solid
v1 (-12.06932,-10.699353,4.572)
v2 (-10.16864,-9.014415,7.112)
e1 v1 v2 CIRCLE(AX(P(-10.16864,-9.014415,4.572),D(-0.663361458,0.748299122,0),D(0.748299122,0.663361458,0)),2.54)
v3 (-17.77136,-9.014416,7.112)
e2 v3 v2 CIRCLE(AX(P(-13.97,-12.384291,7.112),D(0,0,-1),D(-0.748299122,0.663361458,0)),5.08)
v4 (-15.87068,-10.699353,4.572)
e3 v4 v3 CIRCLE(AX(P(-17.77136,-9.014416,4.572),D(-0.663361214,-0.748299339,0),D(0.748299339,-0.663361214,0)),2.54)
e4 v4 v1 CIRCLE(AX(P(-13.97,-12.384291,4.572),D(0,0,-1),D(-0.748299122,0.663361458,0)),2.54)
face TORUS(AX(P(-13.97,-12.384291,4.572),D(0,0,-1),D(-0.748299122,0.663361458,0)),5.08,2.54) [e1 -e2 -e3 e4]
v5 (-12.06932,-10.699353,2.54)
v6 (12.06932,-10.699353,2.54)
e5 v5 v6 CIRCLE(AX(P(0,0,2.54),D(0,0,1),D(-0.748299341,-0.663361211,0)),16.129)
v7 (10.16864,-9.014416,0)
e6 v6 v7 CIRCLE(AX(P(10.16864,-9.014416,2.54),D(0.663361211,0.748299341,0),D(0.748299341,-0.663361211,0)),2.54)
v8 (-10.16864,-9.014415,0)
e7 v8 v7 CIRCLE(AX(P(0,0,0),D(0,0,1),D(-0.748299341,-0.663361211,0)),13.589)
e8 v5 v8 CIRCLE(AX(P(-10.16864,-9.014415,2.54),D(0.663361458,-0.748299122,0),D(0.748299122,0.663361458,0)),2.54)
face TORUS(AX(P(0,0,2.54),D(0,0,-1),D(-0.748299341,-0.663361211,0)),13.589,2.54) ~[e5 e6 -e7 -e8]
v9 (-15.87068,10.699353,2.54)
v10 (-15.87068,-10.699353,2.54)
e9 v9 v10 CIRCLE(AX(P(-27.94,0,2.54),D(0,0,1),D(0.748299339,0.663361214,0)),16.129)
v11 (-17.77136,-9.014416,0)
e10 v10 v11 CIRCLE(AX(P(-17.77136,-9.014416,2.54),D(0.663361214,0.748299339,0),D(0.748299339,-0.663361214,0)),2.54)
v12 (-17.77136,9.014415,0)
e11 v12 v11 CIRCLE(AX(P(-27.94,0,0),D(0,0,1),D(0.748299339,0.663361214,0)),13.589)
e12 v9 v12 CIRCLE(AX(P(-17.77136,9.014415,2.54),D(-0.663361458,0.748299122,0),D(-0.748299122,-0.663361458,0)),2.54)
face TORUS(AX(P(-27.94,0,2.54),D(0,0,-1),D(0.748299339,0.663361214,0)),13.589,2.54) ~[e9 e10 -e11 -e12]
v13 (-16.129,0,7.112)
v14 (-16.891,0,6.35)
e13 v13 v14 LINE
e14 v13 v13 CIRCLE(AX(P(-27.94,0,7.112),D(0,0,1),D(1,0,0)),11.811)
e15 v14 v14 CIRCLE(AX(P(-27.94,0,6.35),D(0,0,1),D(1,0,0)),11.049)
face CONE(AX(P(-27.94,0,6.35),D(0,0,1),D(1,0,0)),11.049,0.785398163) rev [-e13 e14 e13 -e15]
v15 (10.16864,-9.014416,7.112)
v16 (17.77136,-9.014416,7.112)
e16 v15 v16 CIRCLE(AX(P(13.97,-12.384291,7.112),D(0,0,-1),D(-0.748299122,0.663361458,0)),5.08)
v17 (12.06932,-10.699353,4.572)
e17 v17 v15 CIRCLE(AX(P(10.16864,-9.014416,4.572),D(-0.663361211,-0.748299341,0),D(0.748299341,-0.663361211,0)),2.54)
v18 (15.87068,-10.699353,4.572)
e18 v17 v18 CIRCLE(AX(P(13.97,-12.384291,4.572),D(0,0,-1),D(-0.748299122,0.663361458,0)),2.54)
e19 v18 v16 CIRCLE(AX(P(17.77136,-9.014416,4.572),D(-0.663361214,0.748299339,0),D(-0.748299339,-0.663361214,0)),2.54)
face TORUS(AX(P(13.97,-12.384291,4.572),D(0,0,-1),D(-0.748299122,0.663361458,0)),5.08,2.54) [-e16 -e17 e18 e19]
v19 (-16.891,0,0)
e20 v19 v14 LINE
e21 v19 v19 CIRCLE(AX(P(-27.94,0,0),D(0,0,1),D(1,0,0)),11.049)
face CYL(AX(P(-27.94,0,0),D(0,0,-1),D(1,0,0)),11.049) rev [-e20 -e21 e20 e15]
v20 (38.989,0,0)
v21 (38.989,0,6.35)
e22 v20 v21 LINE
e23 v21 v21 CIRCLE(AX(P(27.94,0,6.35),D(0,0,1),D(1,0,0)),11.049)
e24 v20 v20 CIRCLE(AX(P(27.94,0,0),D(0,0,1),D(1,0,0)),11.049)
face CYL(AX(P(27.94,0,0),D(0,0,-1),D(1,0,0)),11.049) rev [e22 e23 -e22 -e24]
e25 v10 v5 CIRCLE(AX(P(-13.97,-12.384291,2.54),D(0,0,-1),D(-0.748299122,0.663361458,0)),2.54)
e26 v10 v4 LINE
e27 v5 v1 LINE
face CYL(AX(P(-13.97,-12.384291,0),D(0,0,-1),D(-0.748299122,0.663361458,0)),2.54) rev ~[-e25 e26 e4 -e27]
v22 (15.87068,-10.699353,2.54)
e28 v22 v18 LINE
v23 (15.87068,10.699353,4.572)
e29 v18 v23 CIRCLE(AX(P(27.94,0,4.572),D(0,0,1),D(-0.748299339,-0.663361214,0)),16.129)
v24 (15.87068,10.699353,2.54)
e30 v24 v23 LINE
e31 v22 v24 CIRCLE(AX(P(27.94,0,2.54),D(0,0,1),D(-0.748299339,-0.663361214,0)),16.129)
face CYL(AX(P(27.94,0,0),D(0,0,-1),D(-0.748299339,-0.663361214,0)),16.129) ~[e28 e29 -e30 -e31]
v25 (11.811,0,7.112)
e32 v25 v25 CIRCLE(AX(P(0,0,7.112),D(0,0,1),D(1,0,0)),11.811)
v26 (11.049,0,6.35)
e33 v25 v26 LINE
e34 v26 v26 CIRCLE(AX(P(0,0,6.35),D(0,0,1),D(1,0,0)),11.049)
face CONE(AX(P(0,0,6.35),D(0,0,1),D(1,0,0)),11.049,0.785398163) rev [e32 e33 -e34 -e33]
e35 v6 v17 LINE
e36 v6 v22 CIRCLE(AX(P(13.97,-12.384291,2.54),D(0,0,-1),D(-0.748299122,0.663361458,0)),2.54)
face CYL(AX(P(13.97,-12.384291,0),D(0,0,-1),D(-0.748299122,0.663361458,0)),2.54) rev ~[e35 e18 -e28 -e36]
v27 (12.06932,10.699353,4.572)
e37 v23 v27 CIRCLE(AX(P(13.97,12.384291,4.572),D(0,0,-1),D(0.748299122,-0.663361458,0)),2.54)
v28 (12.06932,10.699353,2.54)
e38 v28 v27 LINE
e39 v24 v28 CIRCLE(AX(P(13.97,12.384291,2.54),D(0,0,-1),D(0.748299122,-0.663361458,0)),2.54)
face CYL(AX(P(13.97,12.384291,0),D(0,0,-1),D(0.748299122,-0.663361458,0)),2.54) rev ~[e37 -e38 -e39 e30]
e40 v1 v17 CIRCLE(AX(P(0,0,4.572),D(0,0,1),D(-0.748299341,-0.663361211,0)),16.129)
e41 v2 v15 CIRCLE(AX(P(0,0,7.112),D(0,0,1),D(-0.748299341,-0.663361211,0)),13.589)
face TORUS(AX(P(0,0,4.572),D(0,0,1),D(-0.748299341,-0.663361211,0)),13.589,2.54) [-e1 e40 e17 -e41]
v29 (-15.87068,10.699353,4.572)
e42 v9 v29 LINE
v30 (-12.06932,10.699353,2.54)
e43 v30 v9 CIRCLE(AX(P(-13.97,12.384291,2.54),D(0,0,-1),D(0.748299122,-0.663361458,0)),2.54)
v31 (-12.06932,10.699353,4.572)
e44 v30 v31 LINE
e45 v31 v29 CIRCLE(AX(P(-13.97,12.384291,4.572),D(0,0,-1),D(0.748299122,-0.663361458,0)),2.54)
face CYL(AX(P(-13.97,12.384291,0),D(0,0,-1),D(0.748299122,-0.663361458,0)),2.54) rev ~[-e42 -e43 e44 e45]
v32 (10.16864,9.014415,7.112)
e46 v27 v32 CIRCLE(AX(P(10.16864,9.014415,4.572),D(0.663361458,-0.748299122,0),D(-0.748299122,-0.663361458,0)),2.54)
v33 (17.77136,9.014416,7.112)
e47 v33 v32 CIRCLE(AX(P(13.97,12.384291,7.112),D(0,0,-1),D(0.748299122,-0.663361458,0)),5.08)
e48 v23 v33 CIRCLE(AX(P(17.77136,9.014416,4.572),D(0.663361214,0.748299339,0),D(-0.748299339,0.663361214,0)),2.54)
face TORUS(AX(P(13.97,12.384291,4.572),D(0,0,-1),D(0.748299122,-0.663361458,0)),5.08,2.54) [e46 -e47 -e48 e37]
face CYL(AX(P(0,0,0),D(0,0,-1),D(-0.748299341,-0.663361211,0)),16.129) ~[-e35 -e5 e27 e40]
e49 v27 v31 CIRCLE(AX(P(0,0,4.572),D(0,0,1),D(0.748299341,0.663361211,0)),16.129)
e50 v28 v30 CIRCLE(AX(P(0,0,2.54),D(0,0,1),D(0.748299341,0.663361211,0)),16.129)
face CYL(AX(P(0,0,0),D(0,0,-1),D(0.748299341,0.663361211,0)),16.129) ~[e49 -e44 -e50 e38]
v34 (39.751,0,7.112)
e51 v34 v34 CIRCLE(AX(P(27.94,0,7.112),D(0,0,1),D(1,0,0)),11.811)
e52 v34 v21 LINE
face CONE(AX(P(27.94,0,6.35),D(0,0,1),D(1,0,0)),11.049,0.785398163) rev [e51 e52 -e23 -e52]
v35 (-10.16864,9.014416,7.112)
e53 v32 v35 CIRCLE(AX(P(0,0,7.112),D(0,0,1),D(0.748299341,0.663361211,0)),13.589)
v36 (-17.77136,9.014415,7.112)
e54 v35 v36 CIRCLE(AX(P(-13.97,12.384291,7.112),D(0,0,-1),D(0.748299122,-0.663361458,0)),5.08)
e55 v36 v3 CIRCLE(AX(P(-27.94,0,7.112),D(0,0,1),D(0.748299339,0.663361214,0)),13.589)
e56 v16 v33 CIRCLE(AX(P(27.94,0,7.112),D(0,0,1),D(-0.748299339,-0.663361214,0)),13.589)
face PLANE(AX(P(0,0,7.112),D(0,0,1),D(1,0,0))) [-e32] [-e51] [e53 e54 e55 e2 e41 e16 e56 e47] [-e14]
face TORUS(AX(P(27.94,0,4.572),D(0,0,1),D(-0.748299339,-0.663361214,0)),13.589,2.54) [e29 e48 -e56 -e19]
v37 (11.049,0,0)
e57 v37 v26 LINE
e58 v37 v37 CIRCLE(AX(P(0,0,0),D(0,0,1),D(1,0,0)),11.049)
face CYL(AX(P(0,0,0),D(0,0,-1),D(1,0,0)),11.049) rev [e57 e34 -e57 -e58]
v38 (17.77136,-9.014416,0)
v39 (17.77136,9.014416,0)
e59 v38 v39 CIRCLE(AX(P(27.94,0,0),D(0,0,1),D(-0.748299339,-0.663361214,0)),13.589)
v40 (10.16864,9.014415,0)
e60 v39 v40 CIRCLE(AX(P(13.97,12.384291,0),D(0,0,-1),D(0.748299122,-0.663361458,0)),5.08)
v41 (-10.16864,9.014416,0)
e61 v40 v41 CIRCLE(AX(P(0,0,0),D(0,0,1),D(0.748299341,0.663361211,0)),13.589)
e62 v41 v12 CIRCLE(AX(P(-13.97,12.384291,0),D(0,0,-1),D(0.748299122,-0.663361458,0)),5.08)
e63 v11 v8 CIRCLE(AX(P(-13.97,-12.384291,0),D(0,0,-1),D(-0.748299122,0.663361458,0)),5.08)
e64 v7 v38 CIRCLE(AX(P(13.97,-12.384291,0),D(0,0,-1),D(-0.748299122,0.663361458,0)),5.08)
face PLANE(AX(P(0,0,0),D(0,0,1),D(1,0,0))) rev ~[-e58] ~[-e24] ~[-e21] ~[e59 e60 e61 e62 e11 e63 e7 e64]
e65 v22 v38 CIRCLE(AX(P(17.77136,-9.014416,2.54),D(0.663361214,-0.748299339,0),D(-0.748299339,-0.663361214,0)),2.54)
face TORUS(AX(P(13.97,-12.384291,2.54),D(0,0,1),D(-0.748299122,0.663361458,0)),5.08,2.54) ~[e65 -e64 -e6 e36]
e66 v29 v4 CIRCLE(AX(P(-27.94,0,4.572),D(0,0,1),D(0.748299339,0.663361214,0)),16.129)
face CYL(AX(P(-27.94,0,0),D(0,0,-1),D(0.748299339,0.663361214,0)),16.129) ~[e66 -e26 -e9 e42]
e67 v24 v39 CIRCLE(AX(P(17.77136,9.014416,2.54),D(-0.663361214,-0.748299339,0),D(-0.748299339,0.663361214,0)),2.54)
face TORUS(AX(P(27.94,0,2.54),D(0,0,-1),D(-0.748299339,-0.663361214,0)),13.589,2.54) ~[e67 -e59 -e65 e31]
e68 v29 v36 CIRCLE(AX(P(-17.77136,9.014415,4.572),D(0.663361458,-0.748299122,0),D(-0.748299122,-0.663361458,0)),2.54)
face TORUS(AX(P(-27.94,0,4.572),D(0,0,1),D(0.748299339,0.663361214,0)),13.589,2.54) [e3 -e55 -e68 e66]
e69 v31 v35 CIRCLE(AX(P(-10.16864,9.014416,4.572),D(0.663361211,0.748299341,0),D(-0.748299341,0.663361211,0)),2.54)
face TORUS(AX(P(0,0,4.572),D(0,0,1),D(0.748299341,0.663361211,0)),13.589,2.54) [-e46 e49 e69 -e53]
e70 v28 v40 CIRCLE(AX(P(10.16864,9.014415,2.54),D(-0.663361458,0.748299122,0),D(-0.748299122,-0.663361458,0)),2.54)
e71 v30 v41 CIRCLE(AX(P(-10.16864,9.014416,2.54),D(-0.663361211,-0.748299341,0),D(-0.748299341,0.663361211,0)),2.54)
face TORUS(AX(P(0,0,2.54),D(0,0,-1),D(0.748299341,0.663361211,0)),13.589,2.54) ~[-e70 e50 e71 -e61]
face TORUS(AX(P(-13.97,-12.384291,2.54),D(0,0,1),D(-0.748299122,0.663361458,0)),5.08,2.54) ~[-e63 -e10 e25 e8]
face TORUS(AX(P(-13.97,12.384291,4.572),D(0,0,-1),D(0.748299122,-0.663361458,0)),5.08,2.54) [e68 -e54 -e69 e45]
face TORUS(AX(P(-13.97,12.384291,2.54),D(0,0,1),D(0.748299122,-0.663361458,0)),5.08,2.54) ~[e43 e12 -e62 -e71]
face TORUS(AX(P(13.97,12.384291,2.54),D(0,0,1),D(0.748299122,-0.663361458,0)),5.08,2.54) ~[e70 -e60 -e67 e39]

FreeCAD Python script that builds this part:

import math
import FreeCAD as App
import Part
import Sketcher

V = App.Vector
Q = App.Units.Quantity


def edges_at(feature, points):
    """Names of the edges that pass closest to the given points."""
    edges = feature.Shape.Edges
    near = lambda p: min(range(len(edges)), key=lambda i: edges[i].distToShape(Part.Vertex(*p))[0])
    return sorted({f"Edge{near(p) + 1}" for p in points})

doc = App.newDocument("Part")
body = doc.addObject("PartDesign::Body", "Body")

sketch1 = body.newObject("Sketcher::SketchObject", "Sketch")
sketch1.AttachmentSupport = (doc.getObject("XY_Plane"), [""])
sketch1.MapMode = "FlatFace"
sketch1.addGeometry(Part.ArcOfCircle(Part.Circle(V(-13.97, -12.384291, 0), V(0, 0, 1), 2.54), math.radians(41.556743), math.radians(138.443257)), False)
sketch1.addGeometry(Part.ArcOfCircle(Part.Circle(V(0, 0, 0), V(0, 0, 1), 16.129), math.radians(-138.443276), math.radians(-41.556724)), False)
sketch1.addGeometry(Part.ArcOfCircle(Part.Circle(V(13.97, -12.384291, 0), V(0, 0, 1), 2.54), math.radians(41.556743), math.radians(138.443257)), False)
sketch1.addGeometry(Part.ArcOfCircle(Part.Circle(V(27.94, 0, 0), V(0, 0, 1), 16.129), math.radians(-138.443275), math.radians(138.443275)), False)
sketch1.addGeometry(Part.ArcOfCircle(Part.Circle(V(13.97, 12.384291, 0), V(0, 0, 1), 2.54), math.radians(-138.443257), math.radians(-41.556743)), False)
sketch1.addGeometry(Part.ArcOfCircle(Part.Circle(V(0, 0, 0), V(0, 0, 1), 16.129), math.radians(41.556724), math.radians(138.443276)), False)
sketch1.addGeometry(Part.ArcOfCircle(Part.Circle(V(-13.97, 12.384291, 0), V(0, 0, 1), 2.54), math.radians(-138.443257), math.radians(-41.556743)), False)
sketch1.addGeometry(Part.ArcOfCircle(Part.Circle(V(-27.94, 0, 0), V(0, 0, 1), 16.129), math.radians(41.556725), math.radians(318.443275)), False)
sketch1.addGeometry(Part.Circle(V(-27.94, 0, 0), V(0, 0, 1), 11.049), False)
sketch1.addGeometry(Part.Circle(V(0, 0, 0), V(0, 0, 1), 11.049), False)
sketch1.addGeometry(Part.Circle(V(27.94, 0, 0), V(0, 0, 1), 11.049), False)
sketch1.addConstraint(Sketcher.Constraint("Tangent", 0, 1, 1, 1))
sketch1.addConstraint(Sketcher.Constraint("Tangent", 1, 2, 2, 2))
sketch1.addConstraint(Sketcher.Constraint("Tangent", 2, 1, 3, 1))
sketch1.addConstraint(Sketcher.Constraint("Tangent", 3, 2, 4, 2))
sketch1.addConstraint(Sketcher.Constraint("Tangent", 4, 1, 5, 1))
sketch1.addConstraint(Sketcher.Constraint("Tangent", 5, 2, 6, 2))
sketch1.addConstraint(Sketcher.Constraint("Tangent", 6, 1, 7, 1))
sketch1.addConstraint(Sketcher.Constraint("Tangent", 7, 2, 0, 2))
sketch1.addConstraint(Sketcher.Constraint("Coincident", 1, 3, -1, 1))
sketch1.addConstraint(Sketcher.Constraint("Coincident", 5, 3, -1, 1))
sketch1.addConstraint(Sketcher.Constraint("Coincident", 9, 3, -1, 1))
sketch1.addConstraint(Sketcher.Constraint("Coincident", 8, 3, 7, 3))
sketch1.addConstraint(Sketcher.Constraint("Coincident", 10, 3, 3, 3))
sketch1.addConstraint(Sketcher.Constraint("Equal", 0, 2))
sketch1.addConstraint(Sketcher.Constraint("Equal", 1, 3))
sketch1.addConstraint(Sketcher.Constraint("Equal", 2, 4))
sketch1.addConstraint(Sketcher.Constraint("Equal", 3, 5))
sketch1.addConstraint(Sketcher.Constraint("Equal", 4, 6))
sketch1.addConstraint(Sketcher.Constraint("Equal", 5, 7))
sketch1.addConstraint(Sketcher.Constraint("Equal", 8, 9))
sketch1.addConstraint(Sketcher.Constraint("Equal", 9, 10))
sketch1.addConstraint(Sketcher.Constraint("Symmetric", 3, 3, 7, 3, -1, 1))
sketch1.addConstraint(Sketcher.Constraint("PointOnObject", 3, 3, -1))
sketch1.addConstraint(Sketcher.Constraint("Radius", 0, Q("0.1 in")))
sketch1.addConstraint(Sketcher.Constraint("Diameter", 8, Q("0.87 in")))
sketch1.addConstraint(Sketcher.Constraint("Radius", 1, Q("0.635 in")))
sketch1.addConstraint(Sketcher.Constraint("DistanceX", -1, 1, 3, 3, Q("1.1 in")))
pad1 = body.newObject("PartDesign::Pad", "Pad")
pad1.Profile = sketch1
pad1.Length = Q("0.28 in")
doc.recompute()

fillet = body.newObject("PartDesign::Fillet", "Fillet")
fillet.Base = (pad1, edges_at(pad1, [(44.069, 0, 7.112), (44.069, 0, 0)]))
fillet.Radius = Q("0.1 in")
doc.recompute()

chamfer = body.newObject("PartDesign::Chamfer", "Chamfer")
chamfer.Base = (fillet, edges_at(fillet, [(-38.989, 0, 7.112), (-11.049, 0, 7.112), (16.891, 0, 7.112)]))
chamfer.Size = Q("0.03 in")

doc.recompute()
